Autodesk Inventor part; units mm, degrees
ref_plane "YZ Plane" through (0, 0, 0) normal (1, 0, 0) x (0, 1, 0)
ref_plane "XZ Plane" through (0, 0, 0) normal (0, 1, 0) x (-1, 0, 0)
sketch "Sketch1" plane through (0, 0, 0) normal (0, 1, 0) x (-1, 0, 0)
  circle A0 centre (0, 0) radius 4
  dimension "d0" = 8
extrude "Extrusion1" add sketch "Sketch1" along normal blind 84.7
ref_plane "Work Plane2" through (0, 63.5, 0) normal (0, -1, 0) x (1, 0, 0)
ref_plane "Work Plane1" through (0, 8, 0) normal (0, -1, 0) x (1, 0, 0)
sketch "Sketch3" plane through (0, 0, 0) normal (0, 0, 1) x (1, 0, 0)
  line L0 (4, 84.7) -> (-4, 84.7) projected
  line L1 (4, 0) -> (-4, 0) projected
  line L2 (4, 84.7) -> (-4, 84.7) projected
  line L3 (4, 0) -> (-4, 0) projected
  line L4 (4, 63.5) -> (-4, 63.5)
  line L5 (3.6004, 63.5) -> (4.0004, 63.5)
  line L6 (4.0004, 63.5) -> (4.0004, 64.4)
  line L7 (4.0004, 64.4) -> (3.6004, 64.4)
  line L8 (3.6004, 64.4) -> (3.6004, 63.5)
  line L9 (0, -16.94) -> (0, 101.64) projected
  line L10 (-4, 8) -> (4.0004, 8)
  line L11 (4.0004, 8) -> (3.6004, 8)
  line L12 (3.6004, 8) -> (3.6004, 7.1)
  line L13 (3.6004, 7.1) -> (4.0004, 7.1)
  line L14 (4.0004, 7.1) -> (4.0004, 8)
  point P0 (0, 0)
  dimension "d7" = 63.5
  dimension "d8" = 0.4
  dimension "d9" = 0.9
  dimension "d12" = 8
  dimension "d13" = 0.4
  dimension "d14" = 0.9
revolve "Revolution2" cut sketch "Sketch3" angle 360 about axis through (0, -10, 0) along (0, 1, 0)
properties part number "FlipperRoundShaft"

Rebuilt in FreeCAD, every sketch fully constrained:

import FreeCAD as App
import Part
import Sketcher

V = App.Vector


def add_polygon(sketch, points):
    """Adds a closed chain of lines whose ends are joined by coincident constraints."""
    first, n = sketch.GeometryCount, len(points)
    for a, b in zip(points, points[1:] + points[:1]):
        sketch.addGeometry(Part.LineSegment(App.Vector(*a, 0), App.Vector(*b, 0)), False)
    for i in range(n):
        sketch.addConstraint(Sketcher.Constraint("Coincident", first + i, 2, first + (i + 1) % n, 1))

doc = App.newDocument("Part")
body = doc.addObject("PartDesign::Body", "Body")

sketch1 = body.newObject("Sketcher::SketchObject", "Sketch")
sketch1.AttachmentSupport = (doc.getObject("XZ_Plane"), [""])
sketch1.MapMode = "FlatFace"
sketch1.addGeometry(Part.Circle(V(0, 0, 0), V(0, 0, 1), 4), False)
sketch1.addConstraint([
    Sketcher.Constraint("Coincident", 0, 3, -1, 1),
    Sketcher.Constraint("Diameter", 0, 8.0),
])
pad1 = body.newObject("PartDesign::Pad", "Pad")
pad1.Profile = sketch1
pad1.Length = 84.7
pad1.Reversed = True

sketch2 = body.newObject("Sketcher::SketchObject", "Sketch001")
sketch2.AttachmentSupport = (doc.getObject("XY_Plane"), [""])
sketch2.MapMode = "FlatFace"
add_polygon(sketch2, [(4, 8), (3.6, 8), (3.6, 7.1), (4, 7.1)])
add_polygon(sketch2, [(3.6, 63.5), (4, 63.5), (4, 64.4), (3.6, 64.4)])
sketch2.addConstraint([
    Sketcher.Constraint("Horizontal", 0),
    Sketcher.Constraint("Vertical", 1),
    Sketcher.Constraint("Horizontal", 2),
    Sketcher.Constraint("Vertical", 3),
    Sketcher.Constraint("Horizontal", 4),
    Sketcher.Constraint("Horizontal", 6),
    Sketcher.Constraint("Vertical", 7),
    Sketcher.Constraint("Vertical", 3, 2, 5, 2),
    Sketcher.Constraint("Vertical", 1, 2, 6, 2),
    Sketcher.Constraint("Equal", 3, 7),
    Sketcher.Constraint("DistanceX", 0, 2, 0, 1, 0.4),
    Sketcher.Constraint("DistanceY", 1, 2, 1, 1, 0.9),
    Sketcher.Constraint("DistanceY", -1, 1, 0, 2, 8.0),
    Sketcher.Constraint("DistanceY", -1, 1, 4, 2, 63.5),
    Sketcher.Constraint("DistanceX", 4, 1, 4, 2, 0.3996),
    Sketcher.Constraint("DistanceX", -1, 1, 4, 2, 4.0),
])
groove = body.newObject("PartDesign::Groove", "Groove")
groove.Profile = sketch2
groove.ReferenceAxis = (sketch2, ["V_Axis"])
groove.Angle = 360

doc.recompute()
